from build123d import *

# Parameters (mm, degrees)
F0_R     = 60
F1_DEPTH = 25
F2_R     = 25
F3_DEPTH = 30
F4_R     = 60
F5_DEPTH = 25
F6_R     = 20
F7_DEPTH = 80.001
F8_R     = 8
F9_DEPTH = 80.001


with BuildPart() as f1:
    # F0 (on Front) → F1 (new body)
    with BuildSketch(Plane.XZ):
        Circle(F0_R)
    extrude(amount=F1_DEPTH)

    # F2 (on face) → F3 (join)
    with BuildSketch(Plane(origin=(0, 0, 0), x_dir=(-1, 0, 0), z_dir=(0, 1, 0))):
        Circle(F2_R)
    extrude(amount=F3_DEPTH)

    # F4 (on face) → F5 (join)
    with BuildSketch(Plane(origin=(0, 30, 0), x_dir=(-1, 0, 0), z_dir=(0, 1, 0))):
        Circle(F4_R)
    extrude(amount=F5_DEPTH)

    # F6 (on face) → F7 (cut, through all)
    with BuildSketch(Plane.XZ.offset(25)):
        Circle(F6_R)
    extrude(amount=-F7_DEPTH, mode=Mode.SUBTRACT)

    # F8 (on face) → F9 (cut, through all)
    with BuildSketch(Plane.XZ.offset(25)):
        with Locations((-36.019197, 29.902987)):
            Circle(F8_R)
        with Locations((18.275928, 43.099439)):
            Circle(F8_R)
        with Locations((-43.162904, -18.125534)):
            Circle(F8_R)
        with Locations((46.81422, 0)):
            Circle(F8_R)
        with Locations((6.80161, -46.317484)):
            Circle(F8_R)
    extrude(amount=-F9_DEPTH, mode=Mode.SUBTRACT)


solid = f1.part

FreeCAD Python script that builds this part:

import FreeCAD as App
import Part
import Sketcher

V = App.Vector

doc = App.newDocument("Part")
body = doc.addObject("PartDesign::Body", "Body")

# Sketch on XZ plane
sketch1 = body.newObject("Sketcher::SketchObject", "Sketch")
sketch1.AttachmentSupport = (doc.getObject("XZ_Plane"), [""])
sketch1.MapMode = "FlatFace"
sketch1.addGeometry(Part.Circle(V(0, 0, 0), V(0, 0, 1), 60), False)
sketch1.addConstraint(Sketcher.Constraint("Coincident", 0, 3, -1, 1))
sketch1.addConstraint(Sketcher.Constraint("Diameter", 0, 120.0))
pad1 = body.newObject("PartDesign::Pad", "Pad")
pad1.Profile = sketch1
pad1.Length = 25

# Sketch on XZ plane
sketch2 = body.newObject("Sketcher::SketchObject", "Sketch001")
sketch2.AttachmentSupport = (doc.getObject("XZ_Plane"), [""])
sketch2.MapMode = "FlatFace"
sketch2.addGeometry(Part.Circle(V(0, 0, 0), V(0, 0, 1), 25), False)
sketch2.addConstraint(Sketcher.Constraint("Coincident", 0, 3, -1, 1))
sketch2.addConstraint(Sketcher.Constraint("Diameter", 0, 50.0))
pad2 = body.newObject("PartDesign::Pad", "Pad001")
pad2.Profile = sketch2
pad2.Length = 30
pad2.Reversed = True

# Sketch on XZ plane
sketch3 = body.newObject("Sketcher::SketchObject", "Sketch002")
sketch3.AttachmentSupport = (doc.getObject("XZ_Plane"), [""])
sketch3.MapMode = "FlatFace"
sketch3.AttachmentOffset = App.Placement(V(0, 0, -30), App.Rotation())
sketch3.addGeometry(Part.Circle(V(0, 0, 0), V(0, 0, 1), 60), False)
sketch3.addConstraint(Sketcher.Constraint("Coincident", 0, 3, -1, 1))
sketch3.addConstraint(Sketcher.Constraint("Diameter", 0, 120.0))
pad3 = body.newObject("PartDesign::Pad", "Pad002")
pad3.Profile = sketch3
pad3.Length = 25
pad3.Reversed = True

# Sketch on XZ plane
sketch4 = body.newObject("Sketcher::SketchObject", "Sketch003")
sketch4.AttachmentSupport = (doc.getObject("XZ_Plane"), [""])
sketch4.MapMode = "FlatFace"
sketch4.AttachmentOffset = App.Placement(V(0, 0, 25), App.Rotation())
sketch4.addGeometry(Part.Circle(V(0, 0, 0), V(0, 0, 1), 20), False)
sketch4.addConstraint(Sketcher.Constraint("Coincident", 0, 3, -1, 1))
sketch4.addConstraint(Sketcher.Constraint("Diameter", 0, 40.0))
pocket1 = body.newObject("PartDesign::Pocket", "Pocket")
pocket1.Profile = sketch4
pocket1.Type = "ThroughAll"

# Sketch on XZ plane
sketch5 = body.newObject("Sketcher::SketchObject", "Sketch004")
sketch5.AttachmentSupport = (doc.getObject("XZ_Plane"), [""])
sketch5.MapMode = "FlatFace"
sketch5.AttachmentOffset = App.Placement(V(0, 0, 25), App.Rotation())
sketch5.addGeometry(Part.Circle(V(-36, 30, 0), V(0, 0, 1), 8), False)
sketch5.addGeometry(Part.Circle(V(18, 43, 0), V(0, 0, 1), 8), False)
sketch5.addGeometry(Part.Circle(V(-43, -18, 0), V(0, 0, 1), 8), False)
sketch5.addGeometry(Part.Circle(V(47, 0, 0), V(0, 0, 1), 8), False)
sketch5.addGeometry(Part.Circle(V(7, -46, 0), V(0, 0, 1), 8), False)
sketch5.addConstraint(Sketcher.Constraint("Equal", 0, 1))
sketch5.addConstraint(Sketcher.Constraint("Equal", 1, 2))
sketch5.addConstraint(Sketcher.Constraint("Equal", 2, 3))
sketch5.addConstraint(Sketcher.Constraint("Equal", 3, 4))
sketch5.addConstraint(Sketcher.Constraint("PointOnObject", 3, 3, -1))
sketch5.addConstraint(Sketcher.Constraint("Diameter", 0, 16.0))
sketch5.addConstraint(Sketcher.Constraint("DistanceX", -1, 1, 1, 3, 18.275928))
sketch5.addConstraint(Sketcher.Constraint("DistanceY", -1, 1, 1, 3, 43.099439))
sketch5.addConstraint(Sketcher.Constraint("DistanceX", -1, 1, 3, 3, 46.81422))
sketch5.addConstraint(Sketcher.Constraint("DistanceX", -1, 1, 4, 3, 6.80161))
sketch5.addConstraint(Sketcher.Constraint("DistanceY", 0, 3, 1, 3, 13.196452))
sketch5.addConstraint(Sketcher.Constraint("DistanceY", 2, 3, 0, 3, 48.028521))
sketch5.addConstraint(Sketcher.Constraint("DistanceX", 2, 3, 1, 3, 61.438832))
sketch5.addConstraint(Sketcher.Constraint("DistanceY", 4, 3, 2, 3, 28.19195))
sketch5.addConstraint(Sketcher.Constraint("DistanceX", 0, 3, -1, 1, 36.019197))
pocket2 = body.newObject("PartDesign::Pocket", "Pocket001")
pocket2.Profile = sketch5
pocket2.Type = "ThroughAll"

doc.recompute()
